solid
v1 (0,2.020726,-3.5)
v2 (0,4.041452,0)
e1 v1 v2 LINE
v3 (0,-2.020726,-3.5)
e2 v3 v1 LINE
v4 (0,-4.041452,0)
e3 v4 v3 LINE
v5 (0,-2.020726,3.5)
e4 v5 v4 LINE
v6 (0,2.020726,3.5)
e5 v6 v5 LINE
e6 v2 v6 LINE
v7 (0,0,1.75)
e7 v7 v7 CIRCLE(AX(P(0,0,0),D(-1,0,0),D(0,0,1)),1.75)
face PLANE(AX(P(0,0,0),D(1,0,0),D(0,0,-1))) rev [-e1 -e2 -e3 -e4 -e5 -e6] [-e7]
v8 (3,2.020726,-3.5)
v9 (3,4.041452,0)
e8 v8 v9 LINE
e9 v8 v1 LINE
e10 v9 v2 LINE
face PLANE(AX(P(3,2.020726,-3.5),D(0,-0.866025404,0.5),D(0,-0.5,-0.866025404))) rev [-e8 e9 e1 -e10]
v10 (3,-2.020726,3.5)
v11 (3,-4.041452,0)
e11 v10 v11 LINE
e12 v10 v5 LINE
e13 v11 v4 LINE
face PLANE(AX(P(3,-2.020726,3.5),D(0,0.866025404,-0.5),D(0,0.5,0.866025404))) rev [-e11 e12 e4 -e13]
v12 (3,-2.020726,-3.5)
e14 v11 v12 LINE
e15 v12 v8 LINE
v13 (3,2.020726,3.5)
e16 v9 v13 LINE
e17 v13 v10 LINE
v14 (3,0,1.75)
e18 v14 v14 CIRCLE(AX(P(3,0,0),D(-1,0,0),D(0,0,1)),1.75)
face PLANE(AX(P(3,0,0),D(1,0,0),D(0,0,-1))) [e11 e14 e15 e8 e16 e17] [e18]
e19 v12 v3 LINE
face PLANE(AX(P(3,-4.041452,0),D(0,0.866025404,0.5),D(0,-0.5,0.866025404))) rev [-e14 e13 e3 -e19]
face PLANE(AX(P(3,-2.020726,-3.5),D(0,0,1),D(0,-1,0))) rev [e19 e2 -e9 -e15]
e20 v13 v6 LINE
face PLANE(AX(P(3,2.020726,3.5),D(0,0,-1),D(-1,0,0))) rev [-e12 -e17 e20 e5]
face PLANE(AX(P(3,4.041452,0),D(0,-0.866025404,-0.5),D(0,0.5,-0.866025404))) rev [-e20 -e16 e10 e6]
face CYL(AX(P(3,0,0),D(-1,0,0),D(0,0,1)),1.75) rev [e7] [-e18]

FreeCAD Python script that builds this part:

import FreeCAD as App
import Part
import Sketcher
from FreeCAD import Vector
Q = App.Units.Quantity


def add_polygon(sketch, points):
    """Adds a closed chain of lines whose ends are joined by coincident constraints."""
    first, n = sketch.GeometryCount, len(points)
    for a, b in zip(points, points[1:] + points[:1]):
        sketch.addGeometry(Part.LineSegment(App.Vector(*a, 0), App.Vector(*b, 0)), False)
    for i in range(n):
        sketch.addConstraint(Sketcher.Constraint("Coincident", first + i, 2, first + (i + 1) % n, 1))

doc = App.newDocument("Part")
body = doc.addObject("PartDesign::Body", "Body")

sketch1 = doc.addObject("Sketcher::SketchObject", "Sketch")
body.addObject(sketch1)
sketch1.AttachmentSupport = (doc.YZ_Plane, [""])
sketch1.MapMode = "FlatFace"
add_polygon(sketch1, [(-2.020726, -3.5), (2.020726, -3.5), (4.041452, 0), (2.020726, 3.5), (-2.020726, 3.5), (-4.041452, 0)])
sketch1.addConstraint([
    Sketcher.Constraint("Horizontal", 0),
    Sketcher.Constraint("Horizontal", 3),
    Sketcher.Constraint("Symmetric", 0, 2, 3, 2, -1, 1),
    Sketcher.Constraint("Symmetric", 1, 2, 4, 2, -1, 1),
    Sketcher.Constraint("PointOnObject", 1, 2, -1),
    Sketcher.Constraint("Parallel", 2, 5),
    Sketcher.Constraint("Vertical", 0, 2, 2, 2),
    Sketcher.Constraint("Angle", 1, Q("60 deg")),
    Sketcher.Constraint("DistanceY", 0, 2, 2, 2, Q("7 mm")),
    Sketcher.Constraint("DistanceX", 0, 1, 0, 2, Q("4.041452 mm")),
])
pad1 = doc.addObject("PartDesign::Pad", "Pad")
body.addObject(pad1)
pad1.Profile = sketch1
pad1.Length = 3

sketch2 = doc.addObject("Sketcher::SketchObject", "Sketch001")
body.addObject(sketch2)
sketch2.AttachmentSupport = (doc.YZ_Plane, [""])
sketch2.MapMode = "FlatFace"
sketch2.addGeometry(Part.Circle(Vector(0, 0, 0), Vector(0, 0, 1), 1.75), False)
sketch2.addConstraint([
    Sketcher.Constraint("Coincident", 0, 3, -1, 1),
    Sketcher.Constraint("Diameter", 0, Q("3.5 mm")),
])
pocket1 = doc.addObject("PartDesign::Pocket", "Pocket")
body.addObject(pocket1)
pocket1.Profile = sketch2
pocket1.Length = 3
pocket1.Reversed = True

doc.recompute()
